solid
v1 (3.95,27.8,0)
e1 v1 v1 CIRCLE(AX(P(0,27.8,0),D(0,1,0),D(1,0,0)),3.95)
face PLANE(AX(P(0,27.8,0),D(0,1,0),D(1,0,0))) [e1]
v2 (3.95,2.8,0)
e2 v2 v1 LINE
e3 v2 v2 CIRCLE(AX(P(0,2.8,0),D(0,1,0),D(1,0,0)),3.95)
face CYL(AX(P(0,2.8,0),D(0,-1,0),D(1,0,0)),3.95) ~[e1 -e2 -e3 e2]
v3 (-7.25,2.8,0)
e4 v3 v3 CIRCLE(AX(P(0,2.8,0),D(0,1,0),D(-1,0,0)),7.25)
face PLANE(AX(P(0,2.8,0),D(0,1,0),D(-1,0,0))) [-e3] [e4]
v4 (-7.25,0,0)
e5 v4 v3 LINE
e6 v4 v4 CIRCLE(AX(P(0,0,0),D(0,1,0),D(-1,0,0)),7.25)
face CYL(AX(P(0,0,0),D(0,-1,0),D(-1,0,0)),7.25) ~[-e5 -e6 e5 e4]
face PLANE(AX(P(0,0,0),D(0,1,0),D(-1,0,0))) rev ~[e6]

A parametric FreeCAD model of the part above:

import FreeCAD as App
import Part
import Sketcher
from FreeCAD import Vector
Q = App.Units.Quantity

doc = App.newDocument("Part")
body = doc.addObject("PartDesign::Body", "Body")

# Sketch on XZ plane
sketch1 = doc.addObject("Sketcher::SketchObject", "Sketch")
body.addObject(sketch1)
sketch1.AttachmentSupport = (doc.XZ_Plane, [""])
sketch1.MapMode = "FlatFace"
sketch1.addGeometry(Part.Circle(Vector(0, 0, 0), Vector(0, 0, 1), 7), False)
sketch1.addConstraint(Sketcher.Constraint("Coincident", 0, 3, -1, 1))
sketch1.addConstraint(Sketcher.Constraint("Diameter", 0, Q("14.5 mm")))
pad1 = doc.addObject("PartDesign::Pad", "Pad")
body.addObject(pad1)
pad1.Profile = sketch1
pad1.Length = 2.8
pad1.Reversed = True

# Sketch on XZ plane
sketch2 = doc.addObject("Sketcher::SketchObject", "Sketch001")
body.addObject(sketch2)
sketch2.AttachmentSupport = (doc.XZ_Plane, [""])
sketch2.MapMode = "FlatFace"
sketch2.AttachmentOffset = App.Placement(Vector(0, 0, -2.8), App.Rotation())
sketch2.addGeometry(Part.Circle(Vector(0, 0, 0), Vector(0, 0, 1), 4), False)
sketch2.addConstraint(Sketcher.Constraint("Coincident", 0, 3, -1, 1))
sketch2.addConstraint(Sketcher.Constraint("Diameter", 0, Q("7.9 mm")))
pad2 = doc.addObject("PartDesign::Pad", "Pad001")
body.addObject(pad2)
pad2.Profile = sketch2
pad2.Length = 25
pad2.Reversed = True

doc.recompute()
